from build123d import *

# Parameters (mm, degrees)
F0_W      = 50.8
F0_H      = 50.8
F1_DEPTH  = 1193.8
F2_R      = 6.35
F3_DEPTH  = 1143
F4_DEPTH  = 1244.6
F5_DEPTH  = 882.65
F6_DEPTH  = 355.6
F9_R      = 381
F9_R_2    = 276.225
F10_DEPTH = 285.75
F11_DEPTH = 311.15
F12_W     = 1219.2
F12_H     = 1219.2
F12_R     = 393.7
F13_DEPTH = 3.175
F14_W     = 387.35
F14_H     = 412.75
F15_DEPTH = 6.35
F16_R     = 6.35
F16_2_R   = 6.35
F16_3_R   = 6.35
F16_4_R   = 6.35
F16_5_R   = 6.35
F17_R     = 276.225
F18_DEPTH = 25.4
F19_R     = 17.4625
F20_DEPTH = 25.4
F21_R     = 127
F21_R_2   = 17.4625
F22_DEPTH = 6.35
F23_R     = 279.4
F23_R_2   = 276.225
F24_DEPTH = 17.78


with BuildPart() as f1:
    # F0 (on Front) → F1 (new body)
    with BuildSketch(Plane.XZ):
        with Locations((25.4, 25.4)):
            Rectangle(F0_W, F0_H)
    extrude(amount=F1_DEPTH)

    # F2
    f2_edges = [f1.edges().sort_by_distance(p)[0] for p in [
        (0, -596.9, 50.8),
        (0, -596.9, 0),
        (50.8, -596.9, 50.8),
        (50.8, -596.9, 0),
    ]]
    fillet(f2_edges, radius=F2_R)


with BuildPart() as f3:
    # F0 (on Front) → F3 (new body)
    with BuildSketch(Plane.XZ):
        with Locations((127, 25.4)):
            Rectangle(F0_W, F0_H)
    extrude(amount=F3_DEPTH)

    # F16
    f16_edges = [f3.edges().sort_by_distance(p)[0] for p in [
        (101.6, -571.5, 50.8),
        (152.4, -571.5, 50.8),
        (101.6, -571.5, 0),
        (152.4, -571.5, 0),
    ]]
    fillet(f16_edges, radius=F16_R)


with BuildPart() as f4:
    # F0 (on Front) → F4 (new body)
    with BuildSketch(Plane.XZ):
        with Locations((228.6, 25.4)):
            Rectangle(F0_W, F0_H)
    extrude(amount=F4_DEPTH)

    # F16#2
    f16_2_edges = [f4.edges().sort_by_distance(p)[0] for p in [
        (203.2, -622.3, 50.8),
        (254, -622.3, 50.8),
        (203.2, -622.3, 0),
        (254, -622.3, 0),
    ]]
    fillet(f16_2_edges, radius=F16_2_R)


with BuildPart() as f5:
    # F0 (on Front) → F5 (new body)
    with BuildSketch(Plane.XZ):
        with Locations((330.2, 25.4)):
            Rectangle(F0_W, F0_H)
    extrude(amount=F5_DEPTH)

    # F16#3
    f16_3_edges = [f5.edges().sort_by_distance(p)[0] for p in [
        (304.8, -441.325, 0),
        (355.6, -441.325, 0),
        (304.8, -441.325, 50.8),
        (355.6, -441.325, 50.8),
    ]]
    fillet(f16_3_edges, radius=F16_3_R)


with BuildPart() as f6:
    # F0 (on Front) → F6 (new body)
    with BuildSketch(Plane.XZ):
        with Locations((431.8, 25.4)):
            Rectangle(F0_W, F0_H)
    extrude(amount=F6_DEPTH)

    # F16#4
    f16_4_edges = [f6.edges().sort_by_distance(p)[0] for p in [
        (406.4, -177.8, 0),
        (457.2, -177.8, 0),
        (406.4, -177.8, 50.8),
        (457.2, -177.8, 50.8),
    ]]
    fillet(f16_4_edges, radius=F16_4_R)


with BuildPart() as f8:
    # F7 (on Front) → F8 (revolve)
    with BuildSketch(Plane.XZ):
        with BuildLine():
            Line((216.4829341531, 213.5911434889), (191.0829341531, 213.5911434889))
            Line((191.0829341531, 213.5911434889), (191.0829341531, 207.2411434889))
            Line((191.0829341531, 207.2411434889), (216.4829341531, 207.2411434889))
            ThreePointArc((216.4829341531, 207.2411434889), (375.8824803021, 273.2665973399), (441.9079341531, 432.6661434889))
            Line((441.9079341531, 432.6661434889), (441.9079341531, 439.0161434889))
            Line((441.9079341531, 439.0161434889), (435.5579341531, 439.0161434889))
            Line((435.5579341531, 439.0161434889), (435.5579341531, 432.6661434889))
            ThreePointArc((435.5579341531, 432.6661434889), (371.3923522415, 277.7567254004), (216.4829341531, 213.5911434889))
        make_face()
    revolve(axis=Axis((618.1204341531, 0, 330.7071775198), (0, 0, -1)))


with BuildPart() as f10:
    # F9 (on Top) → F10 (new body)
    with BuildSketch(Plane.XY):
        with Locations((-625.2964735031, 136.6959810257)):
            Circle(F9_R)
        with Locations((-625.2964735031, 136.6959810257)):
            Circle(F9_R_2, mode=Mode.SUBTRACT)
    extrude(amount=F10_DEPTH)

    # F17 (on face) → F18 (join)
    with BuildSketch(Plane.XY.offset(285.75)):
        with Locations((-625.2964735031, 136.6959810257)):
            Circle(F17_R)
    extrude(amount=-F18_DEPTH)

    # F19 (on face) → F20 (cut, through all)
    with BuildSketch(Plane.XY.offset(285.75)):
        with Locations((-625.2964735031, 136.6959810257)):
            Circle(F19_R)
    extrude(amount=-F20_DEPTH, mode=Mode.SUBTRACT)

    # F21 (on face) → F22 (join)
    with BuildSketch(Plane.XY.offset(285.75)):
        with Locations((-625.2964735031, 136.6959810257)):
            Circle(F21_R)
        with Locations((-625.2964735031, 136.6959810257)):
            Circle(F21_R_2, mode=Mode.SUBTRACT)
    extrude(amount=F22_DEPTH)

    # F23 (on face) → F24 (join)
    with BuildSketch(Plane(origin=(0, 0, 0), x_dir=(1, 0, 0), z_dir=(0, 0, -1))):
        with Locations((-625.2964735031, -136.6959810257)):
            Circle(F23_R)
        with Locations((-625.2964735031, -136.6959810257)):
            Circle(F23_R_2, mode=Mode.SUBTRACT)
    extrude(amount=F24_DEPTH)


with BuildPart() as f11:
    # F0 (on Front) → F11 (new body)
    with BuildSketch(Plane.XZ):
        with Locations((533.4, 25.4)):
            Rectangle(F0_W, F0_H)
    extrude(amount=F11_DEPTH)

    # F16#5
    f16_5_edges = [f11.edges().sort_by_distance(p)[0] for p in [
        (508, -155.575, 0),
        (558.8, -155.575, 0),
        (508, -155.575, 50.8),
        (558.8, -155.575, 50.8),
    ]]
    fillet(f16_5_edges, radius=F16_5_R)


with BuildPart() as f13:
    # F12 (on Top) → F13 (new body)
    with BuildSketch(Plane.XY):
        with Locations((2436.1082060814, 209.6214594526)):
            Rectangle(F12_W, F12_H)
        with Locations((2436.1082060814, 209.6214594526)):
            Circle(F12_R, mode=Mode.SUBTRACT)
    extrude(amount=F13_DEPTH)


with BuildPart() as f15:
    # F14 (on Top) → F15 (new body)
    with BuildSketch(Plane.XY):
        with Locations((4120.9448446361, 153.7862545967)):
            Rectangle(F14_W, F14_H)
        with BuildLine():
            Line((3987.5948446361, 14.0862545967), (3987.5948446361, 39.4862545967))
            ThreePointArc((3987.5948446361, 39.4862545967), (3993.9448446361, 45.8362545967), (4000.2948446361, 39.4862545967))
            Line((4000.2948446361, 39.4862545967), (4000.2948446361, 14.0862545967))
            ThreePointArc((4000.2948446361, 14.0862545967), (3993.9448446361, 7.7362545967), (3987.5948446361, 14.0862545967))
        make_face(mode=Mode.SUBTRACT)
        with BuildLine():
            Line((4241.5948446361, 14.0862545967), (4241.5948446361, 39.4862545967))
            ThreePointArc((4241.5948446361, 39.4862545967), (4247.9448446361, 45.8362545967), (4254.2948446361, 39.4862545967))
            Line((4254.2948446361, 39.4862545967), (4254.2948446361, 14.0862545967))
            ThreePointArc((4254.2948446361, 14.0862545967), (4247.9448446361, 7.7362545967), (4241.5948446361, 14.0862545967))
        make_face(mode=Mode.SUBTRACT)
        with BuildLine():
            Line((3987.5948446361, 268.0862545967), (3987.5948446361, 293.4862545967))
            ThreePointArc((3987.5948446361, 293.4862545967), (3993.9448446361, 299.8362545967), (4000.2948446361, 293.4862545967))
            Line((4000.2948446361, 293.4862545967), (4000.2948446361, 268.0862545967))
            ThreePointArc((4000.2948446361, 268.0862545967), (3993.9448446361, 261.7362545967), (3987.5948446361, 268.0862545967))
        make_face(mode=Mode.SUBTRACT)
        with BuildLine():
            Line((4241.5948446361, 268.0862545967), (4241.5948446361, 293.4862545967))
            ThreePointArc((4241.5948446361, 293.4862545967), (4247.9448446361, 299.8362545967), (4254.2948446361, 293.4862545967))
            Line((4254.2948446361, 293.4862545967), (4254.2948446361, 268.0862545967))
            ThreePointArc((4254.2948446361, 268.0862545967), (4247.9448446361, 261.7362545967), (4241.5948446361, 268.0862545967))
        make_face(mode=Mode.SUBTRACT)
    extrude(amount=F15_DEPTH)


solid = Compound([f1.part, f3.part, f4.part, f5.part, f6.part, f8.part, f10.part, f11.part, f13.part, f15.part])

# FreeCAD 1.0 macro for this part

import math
import FreeCAD as App
import Part
import Sketcher
Q = App.Units.Quantity


def edges_at(feature, points):
    """Names of the edges that pass closest to the given points."""
    edges = feature.Shape.Edges
    near = lambda p: min(range(len(edges)), key=lambda i: edges[i].distToShape(Part.Vertex(*p))[0])
    return sorted({f"Edge{near(p) + 1}" for p in points})

doc = App.newDocument("Part")
params = doc.addObject("Spreadsheet::Sheet", "Params")
for row, (alias, value) in enumerate([
    ("sketch1_width", "2 in"),
    ("pad1_length", "47 in"),
    ("fillet_radius", "0.25 in"),
    ("sketch2_width", "2 in"),
    ("pad2_length", "45 in"),
    ("fillet2_radius", "0.25 in"),
    ("sketch3_width", "2 in"),
    ("pad3_length", "49 in"),
    ("fillet3_radius", "0.25 in"),
    ("sketch4_width", "2 in"),
    ("pad4_length", "34.75 in"),
    ("fillet4_radius", "0.25 in"),
    ("sketch5_width", "2 in"),
    ("pad5_length", "14 in"),
    ("fillet5_radius", "0.25 in"),
    ("sketch6_width", "1 in"),
    ("sketch6_radius", "8.875 in"),
    ("sketch6_radius2", "8.625 in"),
    ("revolution_angle", "360 deg"),
    ("sketch7_diameter", "30 in"),
    ("sketch7_diameter2", "21.75 in"),
    ("pad6_length", "11.25 in"),
    ("sketch8_diameter", "21.75 in"),
    ("pad7_length", "1 in"),
    ("sketch9_diameter", "1.375 in"),
    ("sketch10_diameter", "10 in"),
    ("sketch10_diameter2", "1.375 in"),
    ("pad8_length", "0.25 in"),
    ("sketch11_diameter", "22 in"),
    ("sketch11_diameter2", "21.75 in"),
    ("pad9_length", "0.7 in"),
    ("sketch12_width", "2 in"),
    ("pad10_length", "12.25 in"),
    ("fillet6_radius", "0.25 in"),
    ("sketch13_diameter", "31 in"),
    ("sketch13_width", "48 in"),
    ("pad11_length", "0.125 in"),
    ("sketch14_height", "1 in"),
    ("sketch14_radius", "0.25 in"),
    ("sketch14_width", "15.25 in"),
    ("sketch14_height2", "16.25 in"),
    ("pad12_length", "0.25 in"),
], start=1):
    params.set(f"A{row}", alias)
    params.set(f"B{row}", "=" + value)
    params.setAlias(f"B{row}", alias)

body = doc.addObject("PartDesign::Body", "Body")

# Sketch on XZ plane
sketch1 = doc.addObject("Sketcher::SketchObject", "Sketch")
body.addObject(sketch1)
sketch1.AttachmentSupport = (doc.XZ_Plane, [""])
sketch1.MapMode = "FlatFace"
sketch1.addGeometry(Part.LineSegment(App.Vector(0, 51, 0), App.Vector(0, 0, 0)), False)
sketch1.addGeometry(Part.LineSegment(App.Vector(0, 0, 0), App.Vector(51, 0, 0)), False)
sketch1.addGeometry(Part.LineSegment(App.Vector(51, 0, 0), App.Vector(51, 51, 0)), False)
sketch1.addGeometry(Part.LineSegment(App.Vector(51, 51, 0), App.Vector(0, 51, 0)), False)
sketch1.addConstraint(Sketcher.Constraint("Coincident", 0, 2, 1, 1))
sketch1.addConstraint(Sketcher.Constraint("Coincident", 1, 2, 2, 1))
sketch1.addConstraint(Sketcher.Constraint("Coincident", 2, 2, 3, 1))
sketch1.addConstraint(Sketcher.Constraint("Coincident", 3, 2, 0, 1))
sketch1.addConstraint(Sketcher.Constraint("Vertical", 0))
sketch1.addConstraint(Sketcher.Constraint("Horizontal", 1))
sketch1.addConstraint(Sketcher.Constraint("Vertical", 2))
sketch1.addConstraint(Sketcher.Constraint("Horizontal", 3))
sketch1.addConstraint(Sketcher.Constraint("Coincident", 0, 2, -1, 1))
sketch1.addConstraint(Sketcher.Constraint("Equal", 3, 0))
sketch1.addConstraint(Sketcher.Constraint("DistanceX", 1, 1, 1, 2, Q("2 in")))
sketch1.setExpression("Constraints[10]", "Params.sketch1_width")
pad1 = doc.addObject("PartDesign::Pad", "Pad")
body.addObject(pad1)
pad1.Profile = sketch1
pad1.setExpression("Length", "Params.pad1_length")
doc.recompute()

fillet = doc.addObject("PartDesign::Fillet", "Fillet")
body.addObject(fillet)
fillet.Base = (pad1, edges_at(pad1, [
    (0, -596.9, 50.8),
    (0, -596.9, 0),
    (50.8, -596.9, 50.8),
    (50.8, -596.9, 0),
]))
fillet.setExpression("Radius", "Params.fillet_radius")
body2 = doc.addObject("PartDesign::Body", "Body001")

# Sketch on XZ plane
sketch2 = doc.addObject("Sketcher::SketchObject", "Sketch001")
body2.addObject(sketch2)
sketch2.AttachmentSupport = (doc.getObject("XZ_Plane001"), [""])
sketch2.MapMode = "FlatFace"
sketch2.addGeometry(Part.LineSegment(App.Vector(102, 51, 0), App.Vector(102, 0, 0)), False)
sketch2.addGeometry(Part.LineSegment(App.Vector(102, 0, 0), App.Vector(152, 0, 0)), False)
sketch2.addGeometry(Part.LineSegment(App.Vector(152, 0, 0), App.Vector(152, 51, 0)), False)
sketch2.addGeometry(Part.LineSegment(App.Vector(152, 51, 0), App.Vector(102, 51, 0)), False)
sketch2.addConstraint(Sketcher.Constraint("Coincident", 0, 2, 1, 1))
sketch2.addConstraint(Sketcher.Constraint("Coincident", 1, 2, 2, 1))
sketch2.addConstraint(Sketcher.Constraint("Coincident", 2, 2, 3, 1))
sketch2.addConstraint(Sketcher.Constraint("Coincident", 3, 2, 0, 1))
sketch2.addConstraint(Sketcher.Constraint("Vertical", 0))
sketch2.addConstraint(Sketcher.Constraint("Horizontal", 1))
sketch2.addConstraint(Sketcher.Constraint("Vertical", 2))
sketch2.addConstraint(Sketcher.Constraint("Horizontal", 3))
sketch2.addConstraint(Sketcher.Constraint("PointOnObject", 0, 2, -1))
sketch2.addConstraint(Sketcher.Constraint("Equal", 3, 0))
sketch2.addConstraint(Sketcher.Constraint("DistanceX", 1, 1, 1, 2, Q("2 in")))
sketch2.addConstraint(Sketcher.Constraint("DistanceX", -1, 1, 0, 2, Q("4 in")))
sketch2.setExpression("Constraints[10]", "Params.sketch2_width")
pad2 = doc.addObject("PartDesign::Pad", "Pad001")
body2.addObject(pad2)
pad2.Profile = sketch2
pad2.setExpression("Length", "Params.pad2_length")
doc.recompute()

fillet2 = doc.addObject("PartDesign::Fillet", "Fillet001")
body2.addObject(fillet2)
fillet2.Base = (pad2, edges_at(pad2, [
    (101.6, -571.5, 50.8),
    (152.4, -571.5, 50.8),
    (101.6, -571.5, 0),
    (152.4, -571.5, 0),
]))
fillet2.setExpression("Radius", "Params.fillet2_radius")
body3 = doc.addObject("PartDesign::Body", "Body002")

# Sketch on XZ plane
sketch3 = doc.addObject("Sketcher::SketchObject", "Sketch002")
body3.addObject(sketch3)
sketch3.AttachmentSupport = (doc.getObject("XZ_Plane002"), [""])
sketch3.MapMode = "FlatFace"
sketch3.addGeometry(Part.LineSegment(App.Vector(203, 51, 0), App.Vector(203, 0, 0)), False)
sketch3.addGeometry(Part.LineSegment(App.Vector(203, 0, 0), App.Vector(254, 0, 0)), False)
sketch3.addGeometry(Part.LineSegment(App.Vector(254, 0, 0), App.Vector(254, 51, 0)), False)
sketch3.addGeometry(Part.LineSegment(App.Vector(254, 51, 0), App.Vector(203, 51, 0)), False)
sketch3.addConstraint(Sketcher.Constraint("Coincident", 0, 2, 1, 1))
sketch3.addConstraint(Sketcher.Constraint("Coincident", 1, 2, 2, 1))
sketch3.addConstraint(Sketcher.Constraint("Coincident", 2, 2, 3, 1))
sketch3.addConstraint(Sketcher.Constraint("Coincident", 3, 2, 0, 1))
sketch3.addConstraint(Sketcher.Constraint("Vertical", 0))
sketch3.addConstraint(Sketcher.Constraint("Horizontal", 1))
sketch3.addConstraint(Sketcher.Constraint("Vertical", 2))
sketch3.addConstraint(Sketcher.Constraint("Horizontal", 3))
sketch3.addConstraint(Sketcher.Constraint("PointOnObject", 0, 2, -1))
sketch3.addConstraint(Sketcher.Constraint("Equal", 3, 0))
sketch3.addConstraint(Sketcher.Constraint("DistanceX", 1, 1, 1, 2, Q("2 in")))
sketch3.addConstraint(Sketcher.Constraint("DistanceX", -1, 1, 0, 2, Q("8 in")))
sketch3.setExpression("Constraints[10]", "Params.sketch3_width")
pad3 = doc.addObject("PartDesign::Pad", "Pad002")
body3.addObject(pad3)
pad3.Profile = sketch3
pad3.setExpression("Length", "Params.pad3_length")
doc.recompute()

fillet3 = doc.addObject("PartDesign::Fillet", "Fillet002")
body3.addObject(fillet3)
fillet3.Base = (pad3, edges_at(pad3, [
    (203.2, -622.3, 50.8),
    (254, -622.3, 50.8),
    (203.2, -622.3, 0),
    (254, -622.3, 0),
]))
fillet3.setExpression("Radius", "Params.fillet3_radius")
body4 = doc.addObject("PartDesign::Body", "Body003")

# Sketch on XZ plane
sketch4 = doc.addObject("Sketcher::SketchObject", "Sketch003")
body4.addObject(sketch4)
sketch4.AttachmentSupport = (doc.getObject("XZ_Plane003"), [""])
sketch4.MapMode = "FlatFace"
sketch4.addGeometry(Part.LineSegment(App.Vector(305, 51, 0), App.Vector(305, 0, 0)), False)
sketch4.addGeometry(Part.LineSegment(App.Vector(305, 0, 0), App.Vector(356, 0, 0)), False)
sketch4.addGeometry(Part.LineSegment(App.Vector(356, 0, 0), App.Vector(356, 51, 0)), False)
sketch4.addGeometry(Part.LineSegment(App.Vector(356, 51, 0), App.Vector(305, 51, 0)), False)
sketch4.addConstraint(Sketcher.Constraint("Coincident", 0, 2, 1, 1))
sketch4.addConstraint(Sketcher.Constraint("Coincident", 1, 2, 2, 1))
sketch4.addConstraint(Sketcher.Constraint("Coincident", 2, 2, 3, 1))
sketch4.addConstraint(Sketcher.Constraint("Coincident", 3, 2, 0, 1))
sketch4.addConstraint(Sketcher.Constraint("Vertical", 0))
sketch4.addConstraint(Sketcher.Constraint("Horizontal", 1))
sketch4.addConstraint(Sketcher.Constraint("Vertical", 2))
sketch4.addConstraint(Sketcher.Constraint("Horizontal", 3))
sketch4.addConstraint(Sketcher.Constraint("PointOnObject", 0, 2, -1))
sketch4.addConstraint(Sketcher.Constraint("Equal", 3, 0))
sketch4.addConstraint(Sketcher.Constraint("DistanceX", 1, 1, 1, 2, Q("2 in")))
sketch4.addConstraint(Sketcher.Constraint("DistanceX", -1, 1, 0, 2, Q("12 in")))
sketch4.setExpression("Constraints[10]", "Params.sketch4_width")
pad4 = doc.addObject("PartDesign::Pad", "Pad003")
body4.addObject(pad4)
pad4.Profile = sketch4
pad4.setExpression("Length", "Params.pad4_length")
doc.recompute()

fillet4 = doc.addObject("PartDesign::Fillet", "Fillet003")
body4.addObject(fillet4)
fillet4.Base = (pad4, edges_at(pad4, [
    (304.8, -441.325, 0),
    (355.6, -441.325, 0),
    (304.8, -441.325, 50.8),
    (355.6, -441.325, 50.8),
]))
fillet4.setExpression("Radius", "Params.fillet4_radius")
body5 = doc.addObject("PartDesign::Body", "Body004")

# Sketch on XZ plane
sketch5 = doc.addObject("Sketcher::SketchObject", "Sketch004")
body5.addObject(sketch5)
sketch5.AttachmentSupport = (doc.getObject("XZ_Plane004"), [""])
sketch5.MapMode = "FlatFace"
sketch5.addGeometry(Part.LineSegment(App.Vector(406, 51, 0), App.Vector(406, 0, 0)), False)
sketch5.addGeometry(Part.LineSegment(App.Vector(406, 0, 0), App.Vector(457, 0, 0)), False)
sketch5.addGeometry(Part.LineSegment(App.Vector(457, 0, 0), App.Vector(457, 51, 0)), False)
sketch5.addGeometry(Part.LineSegment(App.Vector(457, 51, 0), App.Vector(406, 51, 0)), False)
sketch5.addConstraint(Sketcher.Constraint("Coincident", 0, 2, 1, 1))
sketch5.addConstraint(Sketcher.Constraint("Coincident", 1, 2, 2, 1))
sketch5.addConstraint(Sketcher.Constraint("Coincident", 2, 2, 3, 1))
sketch5.addConstraint(Sketcher.Constraint("Coincident", 3, 2, 0, 1))
sketch5.addConstraint(Sketcher.Constraint("Vertical", 0))
sketch5.addConstraint(Sketcher.Constraint("Horizontal", 1))
sketch5.addConstraint(Sketcher.Constraint("Vertical", 2))
sketch5.addConstraint(Sketcher.Constraint("Horizontal", 3))
sketch5.addConstraint(Sketcher.Constraint("PointOnObject", 0, 2, -1))
sketch5.addConstraint(Sketcher.Constraint("Equal", 3, 0))
sketch5.addConstraint(Sketcher.Constraint("DistanceX", 1, 1, 1, 2, Q("2 in")))
sketch5.addConstraint(Sketcher.Constraint("DistanceX", -1, 1, 0, 2, Q("16 in")))
sketch5.setExpression("Constraints[10]", "Params.sketch5_width")
pad5 = doc.addObject("PartDesign::Pad", "Pad004")
body5.addObject(pad5)
pad5.Profile = sketch5
pad5.setExpression("Length", "Params.pad5_length")
doc.recompute()

fillet5 = doc.addObject("PartDesign::Fillet", "Fillet004")
body5.addObject(fillet5)
fillet5.Base = (pad5, edges_at(pad5, [
    (406.4, -177.8, 0),
    (457.2, -177.8, 0),
    (406.4, -177.8, 50.8),
    (457.2, -177.8, 50.8),
]))
fillet5.setExpression("Radius", "Params.fillet5_radius")
body6 = doc.addObject("PartDesign::Body", "Body005")

# Sketch on XZ plane
sketch6 = doc.addObject("Sketcher::SketchObject", "Sketch005")
body6.addObject(sketch6)
sketch6.AttachmentSupport = (doc.getObject("XZ_Plane005"), [""])
sketch6.MapMode = "FlatFace"
sketch6.addGeometry(Part.LineSegment(App.Vector(216, 214, 0), App.Vector(191, 214, 0)), False)
sketch6.addGeometry(Part.LineSegment(App.Vector(191, 214, 0), App.Vector(191, 207, 0)), False)
sketch6.addGeometry(Part.LineSegment(App.Vector(191, 207, 0), App.Vector(216, 207, 0)), False)
sketch6.addGeometry(Part.ArcOfCircle(Part.Circle(App.Vector(216, 433, 0), App.Vector(0, 0, 1), 225), math.radians(-90), math.radians(0)), False)
sketch6.addGeometry(Part.LineSegment(App.Vector(442, 433, 0), App.Vector(442, 439, 0)), False)
sketch6.addGeometry(Part.LineSegment(App.Vector(442, 439, 0), App.Vector(436, 439, 0)), False)
sketch6.addGeometry(Part.LineSegment(App.Vector(436, 439, 0), App.Vector(436, 433, 0)), False)
sketch6.addGeometry(Part.ArcOfCircle(Part.Circle(App.Vector(216, 433, 0), App.Vector(0, 0, 1), 219), math.radians(-90), math.radians(0)), False)
sketch6.addGeometry(Part.LineSegment(App.Vector(618, 439, 0), App.Vector(618, 207, 0)), True)  # axis
sketch6.addConstraint(Sketcher.Constraint("Coincident", 0, 2, 1, 1))
sketch6.addConstraint(Sketcher.Constraint("Coincident", 1, 2, 2, 1))
sketch6.addConstraint(Sketcher.Constraint("Tangent", 2, 2, 3, 1))
sketch6.addConstraint(Sketcher.Constraint("Tangent", 3, 2, 4, 1))
sketch6.addConstraint(Sketcher.Constraint("Coincident", 4, 2, 5, 1))
sketch6.addConstraint(Sketcher.Constraint("Coincident", 5, 2, 6, 1))
sketch6.addConstraint(Sketcher.Constraint("Tangent", 6, 2, 7, 2))
sketch6.addConstraint(Sketcher.Constraint("Tangent", 7, 1, 0, 1))
sketch6.addConstraint(Sketcher.Constraint("Horizontal", 0))
sketch6.addConstraint(Sketcher.Constraint("Vertical", 1))
sketch6.addConstraint(Sketcher.Constraint("Horizontal", 2))
sketch6.addConstraint(Sketcher.Constraint("Vertical", 4))
sketch6.addConstraint(Sketcher.Constraint("Horizontal", 5))
sketch6.addConstraint(Sketcher.Constraint("Vertical", 6))
sketch6.addConstraint(Sketcher.Constraint("Vertical", 8))
sketch6.addConstraint(Sketcher.Constraint("Coincident", 7, 3, 3, 3))
sketch6.addConstraint(Sketcher.Constraint("Horizontal", 5, 2, 8, 1))
sketch6.addConstraint(Sketcher.Constraint("Horizontal", 2, 2, 8, 2))
sketch6.addConstraint(Sketcher.Constraint("Equal", 1, 4))
sketch6.addConstraint(Sketcher.Constraint("DistanceX", 0, 2, 0, 1, Q("1 in")))
sketch6.addConstraint(Sketcher.Constraint("Radius", 3, Q("8.875 in")))
sketch6.addConstraint(Sketcher.Constraint("Radius", 7, Q("8.625 in")))
sketch6.addConstraint(Sketcher.Constraint("DistanceX", 4, 2, 8, 1, Q("6.9375 in")))
sketch6.addConstraint(Sketcher.Constraint("DistanceY", -1, 1, 3, 3, Q("17.0341001 in")))
sketch6.addConstraint(Sketcher.Constraint("DistanceX", -1, 1, 3, 3, Q("216.482934 mm")))
sketch6.setExpression("Constraints[19]", "Params.sketch6_width")
sketch6.setExpression("Constraints[20]", "Params.sketch6_radius")
sketch6.setExpression("Constraints[21]", "Params.sketch6_radius2")
revolution = doc.addObject("PartDesign::Revolution", "Revolution")
body6.addObject(revolution)
revolution.Profile = sketch6
revolution.ReferenceAxis = (sketch6, ["Axis0"])
revolution.setExpression("Angle", "Params.revolution_angle")
body7 = doc.addObject("PartDesign::Body", "Body006")

# Sketch on XY plane
sketch7 = doc.addObject("Sketcher::SketchObject", "Sketch006")
body7.addObject(sketch7)
sketch7.AttachmentSupport = (doc.getObject("XY_Plane006"), [""])
sketch7.MapMode = "FlatFace"
sketch7.addGeometry(Part.Circle(App.Vector(-625, 137, 0), App.Vector(0, 0, 1), 381), False)
sketch7.addGeometry(Part.Circle(App.Vector(-625, 137, 0), App.Vector(0, 0, 1), 276), False)
sketch7.addConstraint(Sketcher.Constraint("Coincident", 1, 3, 0, 3))
sketch7.addConstraint(Sketcher.Constraint("Diameter", 0, Q("30 in")))
sketch7.addConstraint(Sketcher.Constraint("Diameter", 1, Q("21.75 in")))
sketch7.addConstraint(Sketcher.Constraint("DistanceY", -1, 1, 0, 3, Q("136.695981 mm")))
sketch7.addConstraint(Sketcher.Constraint("DistanceX", 0, 3, -1, 1, Q("625.296474 mm")))
sketch7.setExpression("Constraints[1]", "Params.sketch7_diameter")
sketch7.setExpression("Constraints[2]", "Params.sketch7_diameter2")
pad6 = doc.addObject("PartDesign::Pad", "Pad005")
body7.addObject(pad6)
pad6.Profile = sketch7
pad6.setExpression("Length", "Params.pad6_length")

# Sketch on XY plane
sketch8 = doc.addObject("Sketcher::SketchObject", "Sketch007")
body7.addObject(sketch8)
sketch8.AttachmentSupport = (doc.getObject("XY_Plane006"), [""])
sketch8.MapMode = "FlatFace"
sketch8.AttachmentOffset = App.Placement(App.Vector(0, 0, 11.25 * 25.4), App.Rotation())
sketch8.addGeometry(Part.Circle(App.Vector(-625, 137, 0), App.Vector(0, 0, 1), 276), False)
sketch8.addConstraint(Sketcher.Constraint("Diameter", 0, Q("21.75 in")))
sketch8.addConstraint(Sketcher.Constraint("DistanceY", -1, 1, 0, 3, Q("136.695981 mm")))
sketch8.addConstraint(Sketcher.Constraint("DistanceX", 0, 3, -1, 1, Q("625.296474 mm")))
sketch8.setExpression("Constraints[0]", "Params.sketch8_diameter")
pad7 = doc.addObject("PartDesign::Pad", "Pad006")
body7.addObject(pad7)
pad7.Profile = sketch8
pad7.setExpression("Length", "Params.pad7_length")
pad7.Reversed = True

# Sketch on XY plane
sketch9 = doc.addObject("Sketcher::SketchObject", "Sketch008")
body7.addObject(sketch9)
sketch9.AttachmentSupport = (doc.getObject("XY_Plane006"), [""])
sketch9.MapMode = "FlatFace"
sketch9.AttachmentOffset = App.Placement(App.Vector(0, 0, 11.25 * 25.4), App.Rotation())
sketch9.addGeometry(Part.Circle(App.Vector(-625, 137, 0), App.Vector(0, 0, 1), 17), False)
sketch9.addConstraint(Sketcher.Constraint("Diameter", 0, Q("1.375 in")))
sketch9.addConstraint(Sketcher.Constraint("DistanceY", -1, 1, 0, 3, Q("136.695981 mm")))
sketch9.addConstraint(Sketcher.Constraint("DistanceX", 0, 3, -1, 1, Q("625.296474 mm")))
sketch9.setExpression("Constraints[0]", "Params.sketch9_diameter")
pocket1 = doc.addObject("PartDesign::Pocket", "Pocket")
body7.addObject(pocket1)
pocket1.Profile = sketch9
pocket1.Type = "ThroughAll"

# Sketch on XY plane
sketch10 = doc.addObject("Sketcher::SketchObject", "Sketch009")
body7.addObject(sketch10)
sketch10.AttachmentSupport = (doc.getObject("XY_Plane006"), [""])
sketch10.MapMode = "FlatFace"
sketch10.AttachmentOffset = App.Placement(App.Vector(0, 0, 11.25 * 25.4), App.Rotation())
sketch10.addGeometry(Part.Circle(App.Vector(-625, 137, 0), App.Vector(0, 0, 1), 127), False)
sketch10.addGeometry(Part.Circle(App.Vector(-625, 137, 0), App.Vector(0, 0, 1), 17), False)
sketch10.addConstraint(Sketcher.Constraint("Coincident", 1, 3, 0, 3))
sketch10.addConstraint(Sketcher.Constraint("Diameter", 0, Q("10 in")))
sketch10.addConstraint(Sketcher.Constraint("Diameter", 1, Q("1.375 in")))
sketch10.addConstraint(Sketcher.Constraint("DistanceY", -1, 1, 0, 3, Q("136.695981 mm")))
sketch10.addConstraint(Sketcher.Constraint("DistanceX", 0, 3, -1, 1, Q("625.296474 mm")))
sketch10.setExpression("Constraints[1]", "Params.sketch10_diameter")
sketch10.setExpression("Constraints[2]", "Params.sketch10_diameter2")
pad8 = doc.addObject("PartDesign::Pad", "Pad007")
body7.addObject(pad8)
pad8.Profile = sketch10
pad8.setExpression("Length", "Params.pad8_length")

# Sketch on XY plane
sketch11 = doc.addObject("Sketcher::SketchObject", "Sketch010")
body7.addObject(sketch11)
sketch11.AttachmentSupport = (doc.getObject("XY_Plane006"), [""])
sketch11.MapMode = "FlatFace"
sketch11.addGeometry(Part.Circle(App.Vector(-625, 137, 0), App.Vector(0, 0, 1), 279), False)
sketch11.addGeometry(Part.Circle(App.Vector(-625, 137, 0), App.Vector(0, 0, 1), 276), False)
sketch11.addConstraint(Sketcher.Constraint("Coincident", 1, 3, 0, 3))
sketch11.addConstraint(Sketcher.Constraint("Diameter", 0, Q("22 in")))
sketch11.addConstraint(Sketcher.Constraint("Diameter", 1, Q("21.75 in")))
sketch11.addConstraint(Sketcher.Constraint("DistanceY", -1, 1, 0, 3, Q("136.695981 mm")))
sketch11.addConstraint(Sketcher.Constraint("DistanceX", 0, 3, -1, 1, Q("625.296474 mm")))
sketch11.setExpression("Constraints[1]", "Params.sketch11_diameter")
sketch11.setExpression("Constraints[2]", "Params.sketch11_diameter2")
pad9 = doc.addObject("PartDesign::Pad", "Pad008")
body7.addObject(pad9)
pad9.Profile = sketch11
pad9.setExpression("Length", "Params.pad9_length")
pad9.Reversed = True
body8 = doc.addObject("PartDesign::Body", "Body007")

# Sketch on XZ plane
sketch12 = doc.addObject("Sketcher::SketchObject", "Sketch011")
body8.addObject(sketch12)
sketch12.AttachmentSupport = (doc.getObject("XZ_Plane007"), [""])
sketch12.MapMode = "FlatFace"
sketch12.addGeometry(Part.LineSegment(App.Vector(508, 51, 0), App.Vector(508, 0, 0)), False)
sketch12.addGeometry(Part.LineSegment(App.Vector(508, 0, 0), App.Vector(559, 0, 0)), False)
sketch12.addGeometry(Part.LineSegment(App.Vector(559, 0, 0), App.Vector(559, 51, 0)), False)
sketch12.addGeometry(Part.LineSegment(App.Vector(559, 51, 0), App.Vector(508, 51, 0)), False)
sketch12.addConstraint(Sketcher.Constraint("Coincident", 0, 2, 1, 1))
sketch12.addConstraint(Sketcher.Constraint("Coincident", 1, 2, 2, 1))
sketch12.addConstraint(Sketcher.Constraint("Coincident", 2, 2, 3, 1))
sketch12.addConstraint(Sketcher.Constraint("Coincident", 3, 2, 0, 1))
sketch12.addConstraint(Sketcher.Constraint("Vertical", 0))
sketch12.addConstraint(Sketcher.Constraint("Horizontal", 1))
sketch12.addConstraint(Sketcher.Constraint("Vertical", 2))
sketch12.addConstraint(Sketcher.Constraint("Horizontal", 3))
sketch12.addConstraint(Sketcher.Constraint("PointOnObject", 0, 2, -1))
sketch12.addConstraint(Sketcher.Constraint("Equal", 3, 0))
sketch12.addConstraint(Sketcher.Constraint("DistanceX", 1, 1, 1, 2, Q("2 in")))
sketch12.addConstraint(Sketcher.Constraint("DistanceX", -1, 1, 0, 2, Q("20 in")))
sketch12.setExpression("Constraints[10]", "Params.sketch12_width")
pad10 = doc.addObject("PartDesign::Pad", "Pad009")
body8.addObject(pad10)
pad10.Profile = sketch12
pad10.setExpression("Length", "Params.pad10_length")
doc.recompute()

fillet6 = doc.addObject("PartDesign::Fillet", "Fillet005")
body8.addObject(fillet6)
fillet6.Base = (pad10, edges_at(pad10, [
    (508, -155.575, 0),
    (558.8, -155.575, 0),
    (508, -155.575, 50.8),
    (558.8, -155.575, 50.8),
]))
fillet6.setExpression("Radius", "Params.fillet6_radius")
body9 = doc.addObject("PartDesign::Body", "Body008")

# Sketch on XY plane
sketch13 = doc.addObject("Sketcher::SketchObject", "Sketch012")
body9.addObject(sketch13)
sketch13.AttachmentSupport = (doc.getObject("XY_Plane008"), [""])
sketch13.MapMode = "FlatFace"
sketch13.addGeometry(Part.LineSegment(App.Vector(1827, 819, 0), App.Vector(1827, -400, 0)), False)
sketch13.addGeometry(Part.LineSegment(App.Vector(1827, -400, 0), App.Vector(3046, -400, 0)), False)
sketch13.addGeometry(Part.LineSegment(App.Vector(3046, -400, 0), App.Vector(3046, 819, 0)), False)
sketch13.addGeometry(Part.LineSegment(App.Vector(3046, 819, 0), App.Vector(1827, 819, 0)), False)
sketch13.addGeometry(Part.Circle(App.Vector(2436, 210, 0), App.Vector(0, 0, 1), 394), False)
sketch13.addConstraint(Sketcher.Constraint("Coincident", 0, 2, 1, 1))
sketch13.addConstraint(Sketcher.Constraint("Coincident", 1, 2, 2, 1))
sketch13.addConstraint(Sketcher.Constraint("Coincident", 2, 2, 3, 1))
sketch13.addConstraint(Sketcher.Constraint("Coincident", 3, 2, 0, 1))
sketch13.addConstraint(Sketcher.Constraint("Vertical", 0))
sketch13.addConstraint(Sketcher.Constraint("Horizontal", 1))
sketch13.addConstraint(Sketcher.Constraint("Vertical", 2))
sketch13.addConstraint(Sketcher.Constraint("Horizontal", 3))
sketch13.addConstraint(Sketcher.Constraint("Equal", 3, 0))
sketch13.addConstraint(Sketcher.Constraint("Diameter", 4, Q("31 in")))
sketch13.addConstraint(Sketcher.Constraint("DistanceX", 1, 1, 1, 2, Q("48 in")))
sketch13.addConstraint(Sketcher.Constraint("DistanceX", 0, 2, 4, 3, Q("24 in")))
sketch13.addConstraint(Sketcher.Constraint("DistanceY", 0, 2, 4, 3, Q("24 in")))
sketch13.addConstraint(Sketcher.Constraint("DistanceY", -1, 1, 4, 3, Q("209.621459 mm")))
sketch13.addConstraint(Sketcher.Constraint("DistanceX", -1, 1, 4, 3, Q("2436.108206 mm")))
sketch13.setExpression("Constraints[9]", "Params.sketch13_diameter")
sketch13.setExpression("Constraints[10]", "Params.sketch13_width")
pad11 = doc.addObject("PartDesign::Pad", "Pad010")
body9.addObject(pad11)
pad11.Profile = sketch13
pad11.setExpression("Length", "Params.pad11_length")
body10 = doc.addObject("PartDesign::Body", "Body009")

# Sketch on XY plane
sketch14 = doc.addObject("Sketcher::SketchObject", "Sketch013")
body10.addObject(sketch14)
sketch14.AttachmentSupport = (doc.getObject("XY_Plane009"), [""])
sketch14.MapMode = "FlatFace"
sketch14.addGeometry(Part.LineSegment(App.Vector(3927, 360, 0), App.Vector(3927, -53, 0)), False)
sketch14.addGeometry(Part.LineSegment(App.Vector(3927, -53, 0), App.Vector(4315, -53, 0)), False)
sketch14.addGeometry(Part.LineSegment(App.Vector(4315, -53, 0), App.Vector(4315, 360, 0)), False)
sketch14.addGeometry(Part.LineSegment(App.Vector(4315, 360, 0), App.Vector(3927, 360, 0)), False)
sketch14.addGeometry(Part.ArcOfCircle(Part.Circle(App.Vector(3994, 14, 0), App.Vector(0, 0, 1), 6), math.radians(180), math.radians(360)), False)
sketch14.addGeometry(Part.LineSegment(App.Vector(3988, 14, 0), App.Vector(3988, 39, 0)), False)
sketch14.addGeometry(Part.ArcOfCircle(Part.Circle(App.Vector(3994, 39, 0), App.Vector(0, 0, 1), 6), math.radians(0), math.radians(180)), False)
sketch14.addGeometry(Part.LineSegment(App.Vector(4000, 39, 0), App.Vector(4000, 14, 0)), False)
sketch14.addGeometry(Part.ArcOfCircle(Part.Circle(App.Vector(4248, 14, 0), App.Vector(0, 0, 1), 6), math.radians(180), math.radians(360)), False)
sketch14.addGeometry(Part.LineSegment(App.Vector(4242, 14, 0), App.Vector(4242, 39, 0)), False)
sketch14.addGeometry(Part.ArcOfCircle(Part.Circle(App.Vector(4248, 39, 0), App.Vector(0, 0, 1), 6), math.radians(0), math.radians(180)), False)
sketch14.addGeometry(Part.LineSegment(App.Vector(4254, 39, 0), App.Vector(4254, 14, 0)), False)
sketch14.addGeometry(Part.ArcOfCircle(Part.Circle(App.Vector(3994, 268, 0), App.Vector(0, 0, 1), 6), math.radians(180), math.radians(360)), False)
sketch14.addGeometry(Part.LineSegment(App.Vector(3988, 268, 0), App.Vector(3988, 293, 0)), False)
sketch14.addGeometry(Part.ArcOfCircle(Part.Circle(App.Vector(3994, 293, 0), App.Vector(0, 0, 1), 6), math.radians(0), math.radians(180)), False)
sketch14.addGeometry(Part.LineSegment(App.Vector(4000, 293, 0), App.Vector(4000, 268, 0)), False)
sketch14.addGeometry(Part.ArcOfCircle(Part.Circle(App.Vector(4248, 268, 0), App.Vector(0, 0, 1), 6), math.radians(180), math.radians(360)), False)
sketch14.addGeometry(Part.LineSegment(App.Vector(4242, 268, 0), App.Vector(4242, 293, 0)), False)
sketch14.addGeometry(Part.ArcOfCircle(Part.Circle(App.Vector(4248, 293, 0), App.Vector(0, 0, 1), 6), math.radians(0), math.radians(180)), False)
sketch14.addGeometry(Part.LineSegment(App.Vector(4254, 293, 0), App.Vector(4254, 268, 0)), False)
sketch14.addConstraint(Sketcher.Constraint("Coincident", 0, 2, 1, 1))
sketch14.addConstraint(Sketcher.Constraint("Coincident", 1, 2, 2, 1))
sketch14.addConstraint(Sketcher.Constraint("Coincident", 2, 2, 3, 1))
sketch14.addConstraint(Sketcher.Constraint("Coincident", 3, 2, 0, 1))
sketch14.addConstraint(Sketcher.Constraint("Tangent", 4, 1, 5, 1))
sketch14.addConstraint(Sketcher.Constraint("Tangent", 5, 2, 6, 2))
sketch14.addConstraint(Sketcher.Constraint("Tangent", 6, 1, 7, 1))
sketch14.addConstraint(Sketcher.Constraint("Tangent", 7, 2, 4, 2))
sketch14.addConstraint(Sketcher.Constraint("Tangent", 8, 1, 9, 1))
sketch14.addConstraint(Sketcher.Constraint("Tangent", 9, 2, 10, 2))
sketch14.addConstraint(Sketcher.Constraint("Tangent", 10, 1, 11, 1))
sketch14.addConstraint(Sketcher.Constraint("Tangent", 11, 2, 8, 2))
sketch14.addConstraint(Sketcher.Constraint("Tangent", 12, 1, 13, 1))
sketch14.addConstraint(Sketcher.Constraint("Tangent", 13, 2, 14, 2))
sketch14.addConstraint(Sketcher.Constraint("Tangent", 14, 1, 15, 1))
sketch14.addConstraint(Sketcher.Constraint("Tangent", 15, 2, 12, 2))
sketch14.addConstraint(Sketcher.Constraint("Tangent", 16, 1, 17, 1))
sketch14.addConstraint(Sketcher.Constraint("Tangent", 17, 2, 18, 2))
sketch14.addConstraint(Sketcher.Constraint("Tangent", 18, 1, 19, 1))
sketch14.addConstraint(Sketcher.Constraint("Tangent", 19, 2, 16, 2))
sketch14.addConstraint(Sketcher.Constraint("Vertical", 0))
sketch14.addConstraint(Sketcher.Constraint("Horizontal", 1))
sketch14.addConstraint(Sketcher.Constraint("Vertical", 2))
sketch14.addConstraint(Sketcher.Constraint("Horizontal", 3))
sketch14.addConstraint(Sketcher.Constraint("Vertical", 5))
sketch14.addConstraint(Sketcher.Constraint("Vertical", 7))
sketch14.addConstraint(Sketcher.Constraint("Vertical", 9))
sketch14.addConstraint(Sketcher.Constraint("Vertical", 11))
sketch14.addConstraint(Sketcher.Constraint("Vertical", 13))
sketch14.addConstraint(Sketcher.Constraint("Vertical", 15))
sketch14.addConstraint(Sketcher.Constraint("Vertical", 17))
sketch14.addConstraint(Sketcher.Constraint("Vertical", 19))
sketch14.addConstraint(Sketcher.Constraint("Equal", 6, 8))
sketch14.addConstraint(Sketcher.Constraint("Equal", 10, 12))
sketch14.addConstraint(Sketcher.Constraint("Equal", 14, 16))
sketch14.addConstraint(Sketcher.Constraint("Horizontal", 4, 3, 8, 3))
sketch14.addConstraint(Sketcher.Constraint("Horizontal", 6, 3, 10, 3))
sketch14.addConstraint(Sketcher.Constraint("Horizontal", 12, 3, 16, 3))
sketch14.addConstraint(Sketcher.Constraint("Horizontal", 14, 3, 18, 3))
sketch14.addConstraint(Sketcher.Constraint("Vertical", 6, 3, 12, 3))
sketch14.addConstraint(Sketcher.Constraint("Vertical", 10, 3, 16, 3))
sketch14.addConstraint(Sketcher.Constraint("Equal", 11, 13))
sketch14.addConstraint(Sketcher.Constraint("DistanceY", 5, 1, 5, 2, Q("1 in")))
sketch14.addConstraint(Sketcher.Constraint("Radius", 4, Q("0.25 in")))
sketch14.addConstraint(Sketcher.Constraint("DistanceX", 4, 3, 8, 3, Q("10 in")))
sketch14.addConstraint(Sketcher.Constraint("DistanceY", 6, 3, 12, 3, Q("9 in")))
sketch14.addConstraint(Sketcher.Constraint("DistanceX", 1, 1, 1, 2, Q("15.25 in")))
sketch14.addConstraint(Sketcher.Constraint("DistanceY", 0, 2, 0, 1, Q("16.25 in")))
sketch14.addConstraint(Sketcher.Constraint("DistanceX", 0, 2, 4, 3, Q("2.625 in")))
sketch14.addConstraint(Sketcher.Constraint("DistanceY", 0, 2, 4, 3, Q("2.625 in")))
sketch14.addConstraint(Sketcher.Constraint("DistanceX", -1, 1, 4, 3, Q("3993.944845 mm")))
sketch14.addConstraint(Sketcher.Constraint("DistanceY", -1, 1, 4, 3, Q("14.086255 mm")))
sketch14.setExpression("Constraints[42]", "Params.sketch14_height")
sketch14.setExpression("Constraints[43]", "Params.sketch14_radius")
sketch14.setExpression("Constraints[46]", "Params.sketch14_width")
sketch14.setExpression("Constraints[47]", "Params.sketch14_height2")
pad12 = doc.addObject("PartDesign::Pad", "Pad011")
body10.addObject(pad12)
pad12.Profile = sketch14
pad12.setExpression("Length", "Params.pad12_length")

doc.recompute()
